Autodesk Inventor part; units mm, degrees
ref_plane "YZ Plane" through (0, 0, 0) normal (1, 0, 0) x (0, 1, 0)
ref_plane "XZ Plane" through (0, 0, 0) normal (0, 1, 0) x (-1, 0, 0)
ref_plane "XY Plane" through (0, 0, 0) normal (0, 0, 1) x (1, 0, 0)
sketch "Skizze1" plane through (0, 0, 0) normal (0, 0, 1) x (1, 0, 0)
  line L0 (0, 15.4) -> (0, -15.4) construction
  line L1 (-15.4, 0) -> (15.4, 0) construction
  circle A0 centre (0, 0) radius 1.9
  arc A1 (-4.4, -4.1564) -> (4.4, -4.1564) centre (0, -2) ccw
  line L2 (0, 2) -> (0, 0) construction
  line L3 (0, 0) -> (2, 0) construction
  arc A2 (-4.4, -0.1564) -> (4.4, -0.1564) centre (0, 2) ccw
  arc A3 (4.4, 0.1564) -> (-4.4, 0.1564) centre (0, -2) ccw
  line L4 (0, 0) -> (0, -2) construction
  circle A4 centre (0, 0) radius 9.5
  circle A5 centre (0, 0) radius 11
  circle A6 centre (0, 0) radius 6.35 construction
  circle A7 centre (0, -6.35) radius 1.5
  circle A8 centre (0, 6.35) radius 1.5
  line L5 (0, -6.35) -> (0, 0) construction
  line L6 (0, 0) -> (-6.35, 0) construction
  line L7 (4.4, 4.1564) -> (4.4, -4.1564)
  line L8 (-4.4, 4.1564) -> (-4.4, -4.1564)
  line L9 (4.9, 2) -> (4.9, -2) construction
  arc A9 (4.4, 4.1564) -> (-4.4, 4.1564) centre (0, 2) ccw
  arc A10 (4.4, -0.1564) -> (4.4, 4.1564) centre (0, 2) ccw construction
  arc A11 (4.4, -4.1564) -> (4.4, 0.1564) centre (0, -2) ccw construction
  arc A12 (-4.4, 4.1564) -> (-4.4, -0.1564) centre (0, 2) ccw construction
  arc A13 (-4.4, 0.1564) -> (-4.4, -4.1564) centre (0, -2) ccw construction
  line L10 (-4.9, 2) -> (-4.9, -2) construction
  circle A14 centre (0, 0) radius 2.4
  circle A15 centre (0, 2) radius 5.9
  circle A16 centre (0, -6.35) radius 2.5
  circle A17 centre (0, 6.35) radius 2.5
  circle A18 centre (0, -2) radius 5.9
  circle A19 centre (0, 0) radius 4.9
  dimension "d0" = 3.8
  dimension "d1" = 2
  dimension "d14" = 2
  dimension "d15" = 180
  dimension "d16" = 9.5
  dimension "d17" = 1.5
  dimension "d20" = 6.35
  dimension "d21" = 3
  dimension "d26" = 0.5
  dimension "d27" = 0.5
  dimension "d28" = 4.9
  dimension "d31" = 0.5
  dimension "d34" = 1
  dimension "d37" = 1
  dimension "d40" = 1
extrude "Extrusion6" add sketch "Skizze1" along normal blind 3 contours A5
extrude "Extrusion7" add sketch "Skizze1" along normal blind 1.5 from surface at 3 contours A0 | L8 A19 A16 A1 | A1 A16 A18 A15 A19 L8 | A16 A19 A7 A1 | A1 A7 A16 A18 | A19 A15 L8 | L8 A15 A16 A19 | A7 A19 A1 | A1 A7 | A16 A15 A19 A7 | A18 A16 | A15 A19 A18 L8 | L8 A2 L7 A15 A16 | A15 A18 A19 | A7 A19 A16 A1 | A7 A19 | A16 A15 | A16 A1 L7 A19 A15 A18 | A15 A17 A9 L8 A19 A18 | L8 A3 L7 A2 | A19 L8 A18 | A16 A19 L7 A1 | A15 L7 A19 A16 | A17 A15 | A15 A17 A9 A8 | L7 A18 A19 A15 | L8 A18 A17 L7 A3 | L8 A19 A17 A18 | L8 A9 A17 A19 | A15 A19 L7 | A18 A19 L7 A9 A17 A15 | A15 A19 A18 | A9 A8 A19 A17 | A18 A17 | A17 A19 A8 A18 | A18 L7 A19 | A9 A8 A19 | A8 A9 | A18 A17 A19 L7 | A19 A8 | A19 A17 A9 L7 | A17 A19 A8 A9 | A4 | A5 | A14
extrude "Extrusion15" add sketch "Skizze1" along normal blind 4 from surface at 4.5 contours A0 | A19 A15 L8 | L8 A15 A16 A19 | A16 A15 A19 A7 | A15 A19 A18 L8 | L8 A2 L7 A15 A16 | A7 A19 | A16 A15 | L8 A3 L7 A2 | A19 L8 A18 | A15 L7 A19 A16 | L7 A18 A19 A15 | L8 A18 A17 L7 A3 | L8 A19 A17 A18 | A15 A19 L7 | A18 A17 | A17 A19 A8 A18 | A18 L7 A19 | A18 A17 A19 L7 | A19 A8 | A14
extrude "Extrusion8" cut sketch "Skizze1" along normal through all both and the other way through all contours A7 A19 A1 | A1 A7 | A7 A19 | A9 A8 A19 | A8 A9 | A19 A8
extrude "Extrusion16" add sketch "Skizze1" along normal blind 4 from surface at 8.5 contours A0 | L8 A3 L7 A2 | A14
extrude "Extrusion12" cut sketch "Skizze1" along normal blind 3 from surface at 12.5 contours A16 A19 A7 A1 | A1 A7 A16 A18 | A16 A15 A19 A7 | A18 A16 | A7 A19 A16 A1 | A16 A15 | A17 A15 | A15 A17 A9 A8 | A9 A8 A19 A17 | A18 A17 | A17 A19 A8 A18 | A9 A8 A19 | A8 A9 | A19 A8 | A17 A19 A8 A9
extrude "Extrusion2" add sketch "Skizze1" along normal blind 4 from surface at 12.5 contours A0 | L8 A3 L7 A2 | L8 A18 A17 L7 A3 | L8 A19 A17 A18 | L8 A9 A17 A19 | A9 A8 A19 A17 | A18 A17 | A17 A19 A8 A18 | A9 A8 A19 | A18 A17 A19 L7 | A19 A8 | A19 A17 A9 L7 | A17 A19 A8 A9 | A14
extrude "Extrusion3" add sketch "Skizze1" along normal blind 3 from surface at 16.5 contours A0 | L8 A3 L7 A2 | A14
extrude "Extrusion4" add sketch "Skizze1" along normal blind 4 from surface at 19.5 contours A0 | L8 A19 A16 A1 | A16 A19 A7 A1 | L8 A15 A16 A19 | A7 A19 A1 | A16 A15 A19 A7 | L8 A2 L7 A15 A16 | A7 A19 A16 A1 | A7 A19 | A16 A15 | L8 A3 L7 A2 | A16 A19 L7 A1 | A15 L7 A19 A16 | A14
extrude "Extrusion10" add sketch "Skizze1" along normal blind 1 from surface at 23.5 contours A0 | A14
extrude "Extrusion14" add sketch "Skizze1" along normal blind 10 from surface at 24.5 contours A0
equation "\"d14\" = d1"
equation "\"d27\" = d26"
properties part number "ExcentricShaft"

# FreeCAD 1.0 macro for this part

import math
import FreeCAD as App
import Part
import Sketcher

V = App.Vector
Q = App.Units.Quantity

doc = App.newDocument("Part")
body = doc.addObject("PartDesign::Body", "Body")

# Sketch on XY plane
sketch1 = doc.addObject("Sketcher::SketchObject", "Sketch")
body.addObject(sketch1)
sketch1.AttachmentSupport = (doc.XY_Plane, [""])
sketch1.MapMode = "FlatFace"
sketch1.addGeometry([
    Part.Circle(V(0, 0, 0), V(0, 0, 1), 11),
    Part.Circle(V(0, 0, 0), V(0, 0, 1), 10),
], False)
sketch1.addConstraint([
    Sketcher.Constraint("Coincident", 0, 3, -1, 1),
    Sketcher.Constraint("Coincident", 1, 3, -1, 1),
    Sketcher.Constraint("Diameter", 1, Q("19 mm")),
    Sketcher.Constraint("Diameter", 0, Q("22 mm")),
])
pad1 = doc.addObject("PartDesign::Pad", "Pad")
body.addObject(pad1)
pad1.Profile = sketch1
pad1.Length = 3

# Sketch on XY plane
sketch2 = doc.addObject("Sketcher::SketchObject", "Sketch001")
body.addObject(sketch2)
sketch2.AttachmentSupport = (doc.XY_Plane, [""])
sketch2.MapMode = "FlatFace"
sketch2.AttachmentOffset = App.Placement(V(0, 0, 3), App.Rotation())
sketch2.addGeometry(Part.Circle(V(0, 0, 0), V(0, 0, 1), 11), False)
sketch2.addConstraint([
    Sketcher.Constraint("Coincident", 0, 3, -1, 1),
    Sketcher.Constraint("Diameter", 0, Q("22 mm")),
])
pad2 = doc.addObject("PartDesign::Pad", "Pad001")
body.addObject(pad2)
pad2.Profile = sketch2
pad2.Length = 1.5

# Sketch on XY plane
sketch3 = doc.addObject("Sketcher::SketchObject", "Sketch002")
body.addObject(sketch3)
sketch3.AttachmentSupport = (doc.XY_Plane, [""])
sketch3.MapMode = "FlatFace"
sketch3.AttachmentOffset = App.Placement(V(0, 0, 4.5), App.Rotation())
sketch3.addGeometry(Part.Circle(V(0, 0, 0), V(0, 0, 1), 4.9), False)
sketch3.addConstraint([
    Sketcher.Constraint("Coincident", 0, 3, -1, 1),
    Sketcher.Constraint("Diameter", 0, Q("9.8 mm")),
])
pad3 = doc.addObject("PartDesign::Pad", "Pad002")
body.addObject(pad3)
pad3.Profile = sketch3
pad3.Length = 4

# Sketch on XY plane
sketch4 = doc.addObject("Sketcher::SketchObject", "Sketch003")
body.addObject(sketch4)
sketch4.AttachmentSupport = (doc.XY_Plane, [""])
sketch4.MapMode = "FlatFace"
sketch4.addGeometry([
    Part.Circle(V(0, -6.3, 0), V(0, 0, 1), 1.5),
    Part.Circle(V(0, 6.3, 0), V(0, 0, 1), 1.5),
], False)
sketch4.addConstraint([
    Sketcher.Constraint("Equal", 0, 1),
    Sketcher.Constraint("Symmetric", 0, 3, 1, 3, -1, 1),
    Sketcher.Constraint("PointOnObject", 0, 3, -2),
    Sketcher.Constraint("Diameter", 0, Q("3 mm")),
    Sketcher.Constraint("DistanceY", 0, 3, -1, 1, Q("6.35 mm")),
])
pocket1 = doc.addObject("PartDesign::Pocket", "Pocket")
body.addObject(pocket1)
pocket1.Profile = sketch4
pocket1.Type = "ThroughAll"
pocket1.Reversed = True

# Sketch on XY plane
sketch5 = doc.addObject("Sketcher::SketchObject", "Sketch004")
body.addObject(sketch5)
sketch5.AttachmentSupport = (doc.XY_Plane, [""])
sketch5.MapMode = "FlatFace"
sketch5.AttachmentOffset = App.Placement(V(0, 0, 8.5), App.Rotation())
sketch5.addGeometry([
    Part.LineSegment(V(-4.4, 0.16, 0), V(-4.4, -0.16, 0)),
    Part.ArcOfCircle(Part.Circle(V(0, 2, 0), V(0, 0, 1), 4.9), math.radians(-154), math.radians(-26)),
    Part.LineSegment(V(4.4, -0.16, 0), V(4.4, 0.16, 0)),
    Part.ArcOfCircle(Part.Circle(V(0, -2, 0), V(0, 0, 1), 4.9), math.radians(26), math.radians(154)),
], False)
sketch5.addConstraint([
    Sketcher.Constraint("Coincident", 0, 2, 1, 1),
    Sketcher.Constraint("Coincident", 1, 2, 2, 1),
    Sketcher.Constraint("Coincident", 2, 2, 3, 1),
    Sketcher.Constraint("Coincident", 3, 2, 0, 1),
    Sketcher.Constraint("Vertical", 0),
    Sketcher.Constraint("Vertical", 2),
    Sketcher.Constraint("Equal", 1, 3),
    Sketcher.Constraint("Symmetric", 1, 3, 3, 3, -1, 1),
    Sketcher.Constraint("Symmetric", 0, 2, 1, 2, -2),
    Sketcher.Constraint("Radius", 1, Q("4.9 mm")),
    Sketcher.Constraint("DistanceY", -1, 1, 1, 3, Q("2 mm")),
    Sketcher.Constraint("DistanceX", 0, 2, -1, 1, Q("4.4 mm")),
])
pad4 = doc.addObject("PartDesign::Pad", "Pad003")
body.addObject(pad4)
pad4.Profile = sketch5
pad4.Length = 4

# Sketch on XY plane
sketch6 = doc.addObject("Sketcher::SketchObject", "Sketch005")
body.addObject(sketch6)
sketch6.AttachmentSupport = (doc.XY_Plane, [""])
sketch6.MapMode = "FlatFace"
sketch6.AttachmentOffset = App.Placement(V(0, 0, 12.5), App.Rotation())
sketch6.addGeometry([
    Part.Circle(V(0, -6.3, 0), V(0, 0, 1), 2.5),
    Part.Circle(V(0, -6.3, 0), V(0, 0, 1), 1.5),
    Part.Circle(V(0, 6.3, 0), V(0, 0, 1), 2.5),
], False)
sketch6.addConstraint([
    Sketcher.Constraint("Coincident", 1, 3, 0, 3),
    Sketcher.Constraint("Equal", 0, 2),
    Sketcher.Constraint("Symmetric", 0, 3, 2, 3, -1, 1),
    Sketcher.Constraint("PointOnObject", 0, 3, -2),
    Sketcher.Constraint("Diameter", 1, Q("3 mm")),
    Sketcher.Constraint("Diameter", 0, Q("5 mm")),
    Sketcher.Constraint("DistanceY", 0, 3, -1, 1, Q("6.35 mm")),
])
pocket2 = doc.addObject("PartDesign::Pocket", "Pocket001")
body.addObject(pocket2)
pocket2.Profile = sketch6
pocket2.Length = 3
pocket2.Reversed = True

# Sketch on XY plane
sketch7 = doc.addObject("Sketcher::SketchObject", "Sketch006")
body.addObject(sketch7)
sketch7.AttachmentSupport = (doc.XY_Plane, [""])
sketch7.MapMode = "FlatFace"
sketch7.AttachmentOffset = App.Placement(V(0, 0, 12.5), App.Rotation())
sketch7.addGeometry([
    Part.ArcOfCircle(Part.Circle(V(0, 2, 0), V(0, 0, 1), 4.9), math.radians(-154), math.radians(-26)),
    Part.LineSegment(V(4.4, -0.2, 0), V(4.4, 4.2, 0)),
    Part.ArcOfCircle(Part.Circle(V(0, 2, 0), V(0, 0, 1), 4.9), math.radians(26), math.radians(154)),
    Part.LineSegment(V(-4.4, 4.2, 0), V(-4.4, -0.2, 0)),
], False)
sketch7.addConstraint([
    Sketcher.Constraint("Coincident", 0, 2, 1, 1),
    Sketcher.Constraint("Coincident", 1, 2, 2, 1),
    Sketcher.Constraint("Coincident", 2, 2, 3, 1),
    Sketcher.Constraint("Coincident", 3, 2, 0, 1),
    Sketcher.Constraint("Vertical", 1),
    Sketcher.Constraint("Vertical", 3),
    Sketcher.Constraint("Coincident", 2, 3, 0, 3),
    Sketcher.Constraint("Equal", 0, 2),
    Sketcher.Constraint("Symmetric", 1, 2, 2, 2, -2),
    Sketcher.Constraint("Radius", 0, Q("4.9 mm")),
    Sketcher.Constraint("DistanceY", -1, 1, 0, 3, Q("2 mm")),
    Sketcher.Constraint("DistanceX", -1, 1, 0, 2, Q("4.4 mm")),
])
pad5 = doc.addObject("PartDesign::Pad", "Pad004")
body.addObject(pad5)
pad5.Profile = sketch7
pad5.Length = 4

# Sketch on XY plane
sketch8 = doc.addObject("Sketcher::SketchObject", "Sketch007")
body.addObject(sketch8)
sketch8.AttachmentSupport = (doc.XY_Plane, [""])
sketch8.MapMode = "FlatFace"
sketch8.AttachmentOffset = App.Placement(V(0, 0, 16.5), App.Rotation())
sketch8.addGeometry([
    Part.LineSegment(V(-4.4, 0.16, 0), V(-4.4, -0.16, 0)),
    Part.ArcOfCircle(Part.Circle(V(0, 2, 0), V(0, 0, 1), 4.9), math.radians(-154), math.radians(-26)),
    Part.LineSegment(V(4.4, -0.16, 0), V(4.4, 0.16, 0)),
    Part.ArcOfCircle(Part.Circle(V(0, -2, 0), V(0, 0, 1), 4.9), math.radians(26), math.radians(154)),
], False)
sketch8.addConstraint([
    Sketcher.Constraint("Coincident", 0, 2, 1, 1),
    Sketcher.Constraint("Coincident", 1, 2, 2, 1),
    Sketcher.Constraint("Coincident", 2, 2, 3, 1),
    Sketcher.Constraint("Coincident", 3, 2, 0, 1),
    Sketcher.Constraint("Vertical", 0),
    Sketcher.Constraint("Vertical", 2),
    Sketcher.Constraint("Equal", 1, 3),
    Sketcher.Constraint("Symmetric", 1, 3, 3, 3, -1, 1),
    Sketcher.Constraint("Symmetric", 0, 2, 1, 2, -2),
    Sketcher.Constraint("Radius", 1, Q("4.9 mm")),
    Sketcher.Constraint("DistanceY", -1, 1, 1, 3, Q("2 mm")),
    Sketcher.Constraint("DistanceX", 0, 2, -1, 1, Q("4.4 mm")),
])
pad6 = doc.addObject("PartDesign::Pad", "Pad005")
body.addObject(pad6)
pad6.Profile = sketch8
pad6.Length = 3

# Sketch on XY plane
sketch9 = doc.addObject("Sketcher::SketchObject", "Sketch008")
body.addObject(sketch9)
sketch9.AttachmentSupport = (doc.XY_Plane, [""])
sketch9.MapMode = "FlatFace"
sketch9.AttachmentOffset = App.Placement(V(0, 0, 19.5), App.Rotation())
sketch9.addGeometry([
    Part.LineSegment(V(-4.4, 0.2, 0), V(-4.4, -4.2, 0)),
    Part.ArcOfCircle(Part.Circle(V(0, -2, 0), V(0, 0, 1), 4.9), math.radians(-154), math.radians(-26)),
    Part.LineSegment(V(4.4, -4.2, 0), V(4.4, 0.2, 0)),
    Part.ArcOfCircle(Part.Circle(V(0, -2, 0), V(0, 0, 1), 4.9), math.radians(26), math.radians(154)),
], False)
sketch9.addConstraint([
    Sketcher.Constraint("Coincident", 0, 2, 1, 1),
    Sketcher.Constraint("Coincident", 1, 2, 2, 1),
    Sketcher.Constraint("Coincident", 2, 2, 3, 1),
    Sketcher.Constraint("Coincident", 3, 2, 0, 1),
    Sketcher.Constraint("Vertical", 0),
    Sketcher.Constraint("Vertical", 2),
    Sketcher.Constraint("Coincident", 3, 3, 1, 3),
    Sketcher.Constraint("Equal", 1, 3),
    Sketcher.Constraint("Symmetric", 0, 2, 1, 2, -2),
    Sketcher.Constraint("Radius", 1, Q("4.9 mm")),
    Sketcher.Constraint("DistanceY", 1, 3, -1, 1, Q("2 mm")),
    Sketcher.Constraint("DistanceX", 0, 2, -1, 1, Q("4.4 mm")),
])
pad7 = doc.addObject("PartDesign::Pad", "Pad006")
body.addObject(pad7)
pad7.Profile = sketch9
pad7.Length = 4

# Sketch on XY plane
sketch10 = doc.addObject("Sketcher::SketchObject", "Sketch009")
body.addObject(sketch10)
sketch10.AttachmentSupport = (doc.XY_Plane, [""])
sketch10.MapMode = "FlatFace"
sketch10.AttachmentOffset = App.Placement(V(0, 0, 23.5), App.Rotation())
sketch10.addGeometry(Part.Circle(V(0, 0, 0), V(0, 0, 1), 2.4), False)
sketch10.addConstraint([
    Sketcher.Constraint("Coincident", 0, 3, -1, 1),
    Sketcher.Constraint("Diameter", 0, Q("4.8 mm")),
])
pad8 = doc.addObject("PartDesign::Pad", "Pad007")
body.addObject(pad8)
pad8.Profile = sketch10
pad8.Length = 1

# Sketch on XY plane
sketch11 = doc.addObject("Sketcher::SketchObject", "Sketch010")
body.addObject(sketch11)
sketch11.AttachmentSupport = (doc.XY_Plane, [""])
sketch11.MapMode = "FlatFace"
sketch11.AttachmentOffset = App.Placement(V(0, 0, 24.5), App.Rotation())
sketch11.addGeometry(Part.Circle(V(0, 0, 0), V(0, 0, 1), 1.9), False)
sketch11.addConstraint([
    Sketcher.Constraint("Coincident", 0, 3, -1, 1),
    Sketcher.Constraint("Diameter", 0, Q("3.8 mm")),
])
pad9 = doc.addObject("PartDesign::Pad", "Pad008")
body.addObject(pad9)
pad9.Profile = sketch11
pad9.Length = 10

doc.recompute()
